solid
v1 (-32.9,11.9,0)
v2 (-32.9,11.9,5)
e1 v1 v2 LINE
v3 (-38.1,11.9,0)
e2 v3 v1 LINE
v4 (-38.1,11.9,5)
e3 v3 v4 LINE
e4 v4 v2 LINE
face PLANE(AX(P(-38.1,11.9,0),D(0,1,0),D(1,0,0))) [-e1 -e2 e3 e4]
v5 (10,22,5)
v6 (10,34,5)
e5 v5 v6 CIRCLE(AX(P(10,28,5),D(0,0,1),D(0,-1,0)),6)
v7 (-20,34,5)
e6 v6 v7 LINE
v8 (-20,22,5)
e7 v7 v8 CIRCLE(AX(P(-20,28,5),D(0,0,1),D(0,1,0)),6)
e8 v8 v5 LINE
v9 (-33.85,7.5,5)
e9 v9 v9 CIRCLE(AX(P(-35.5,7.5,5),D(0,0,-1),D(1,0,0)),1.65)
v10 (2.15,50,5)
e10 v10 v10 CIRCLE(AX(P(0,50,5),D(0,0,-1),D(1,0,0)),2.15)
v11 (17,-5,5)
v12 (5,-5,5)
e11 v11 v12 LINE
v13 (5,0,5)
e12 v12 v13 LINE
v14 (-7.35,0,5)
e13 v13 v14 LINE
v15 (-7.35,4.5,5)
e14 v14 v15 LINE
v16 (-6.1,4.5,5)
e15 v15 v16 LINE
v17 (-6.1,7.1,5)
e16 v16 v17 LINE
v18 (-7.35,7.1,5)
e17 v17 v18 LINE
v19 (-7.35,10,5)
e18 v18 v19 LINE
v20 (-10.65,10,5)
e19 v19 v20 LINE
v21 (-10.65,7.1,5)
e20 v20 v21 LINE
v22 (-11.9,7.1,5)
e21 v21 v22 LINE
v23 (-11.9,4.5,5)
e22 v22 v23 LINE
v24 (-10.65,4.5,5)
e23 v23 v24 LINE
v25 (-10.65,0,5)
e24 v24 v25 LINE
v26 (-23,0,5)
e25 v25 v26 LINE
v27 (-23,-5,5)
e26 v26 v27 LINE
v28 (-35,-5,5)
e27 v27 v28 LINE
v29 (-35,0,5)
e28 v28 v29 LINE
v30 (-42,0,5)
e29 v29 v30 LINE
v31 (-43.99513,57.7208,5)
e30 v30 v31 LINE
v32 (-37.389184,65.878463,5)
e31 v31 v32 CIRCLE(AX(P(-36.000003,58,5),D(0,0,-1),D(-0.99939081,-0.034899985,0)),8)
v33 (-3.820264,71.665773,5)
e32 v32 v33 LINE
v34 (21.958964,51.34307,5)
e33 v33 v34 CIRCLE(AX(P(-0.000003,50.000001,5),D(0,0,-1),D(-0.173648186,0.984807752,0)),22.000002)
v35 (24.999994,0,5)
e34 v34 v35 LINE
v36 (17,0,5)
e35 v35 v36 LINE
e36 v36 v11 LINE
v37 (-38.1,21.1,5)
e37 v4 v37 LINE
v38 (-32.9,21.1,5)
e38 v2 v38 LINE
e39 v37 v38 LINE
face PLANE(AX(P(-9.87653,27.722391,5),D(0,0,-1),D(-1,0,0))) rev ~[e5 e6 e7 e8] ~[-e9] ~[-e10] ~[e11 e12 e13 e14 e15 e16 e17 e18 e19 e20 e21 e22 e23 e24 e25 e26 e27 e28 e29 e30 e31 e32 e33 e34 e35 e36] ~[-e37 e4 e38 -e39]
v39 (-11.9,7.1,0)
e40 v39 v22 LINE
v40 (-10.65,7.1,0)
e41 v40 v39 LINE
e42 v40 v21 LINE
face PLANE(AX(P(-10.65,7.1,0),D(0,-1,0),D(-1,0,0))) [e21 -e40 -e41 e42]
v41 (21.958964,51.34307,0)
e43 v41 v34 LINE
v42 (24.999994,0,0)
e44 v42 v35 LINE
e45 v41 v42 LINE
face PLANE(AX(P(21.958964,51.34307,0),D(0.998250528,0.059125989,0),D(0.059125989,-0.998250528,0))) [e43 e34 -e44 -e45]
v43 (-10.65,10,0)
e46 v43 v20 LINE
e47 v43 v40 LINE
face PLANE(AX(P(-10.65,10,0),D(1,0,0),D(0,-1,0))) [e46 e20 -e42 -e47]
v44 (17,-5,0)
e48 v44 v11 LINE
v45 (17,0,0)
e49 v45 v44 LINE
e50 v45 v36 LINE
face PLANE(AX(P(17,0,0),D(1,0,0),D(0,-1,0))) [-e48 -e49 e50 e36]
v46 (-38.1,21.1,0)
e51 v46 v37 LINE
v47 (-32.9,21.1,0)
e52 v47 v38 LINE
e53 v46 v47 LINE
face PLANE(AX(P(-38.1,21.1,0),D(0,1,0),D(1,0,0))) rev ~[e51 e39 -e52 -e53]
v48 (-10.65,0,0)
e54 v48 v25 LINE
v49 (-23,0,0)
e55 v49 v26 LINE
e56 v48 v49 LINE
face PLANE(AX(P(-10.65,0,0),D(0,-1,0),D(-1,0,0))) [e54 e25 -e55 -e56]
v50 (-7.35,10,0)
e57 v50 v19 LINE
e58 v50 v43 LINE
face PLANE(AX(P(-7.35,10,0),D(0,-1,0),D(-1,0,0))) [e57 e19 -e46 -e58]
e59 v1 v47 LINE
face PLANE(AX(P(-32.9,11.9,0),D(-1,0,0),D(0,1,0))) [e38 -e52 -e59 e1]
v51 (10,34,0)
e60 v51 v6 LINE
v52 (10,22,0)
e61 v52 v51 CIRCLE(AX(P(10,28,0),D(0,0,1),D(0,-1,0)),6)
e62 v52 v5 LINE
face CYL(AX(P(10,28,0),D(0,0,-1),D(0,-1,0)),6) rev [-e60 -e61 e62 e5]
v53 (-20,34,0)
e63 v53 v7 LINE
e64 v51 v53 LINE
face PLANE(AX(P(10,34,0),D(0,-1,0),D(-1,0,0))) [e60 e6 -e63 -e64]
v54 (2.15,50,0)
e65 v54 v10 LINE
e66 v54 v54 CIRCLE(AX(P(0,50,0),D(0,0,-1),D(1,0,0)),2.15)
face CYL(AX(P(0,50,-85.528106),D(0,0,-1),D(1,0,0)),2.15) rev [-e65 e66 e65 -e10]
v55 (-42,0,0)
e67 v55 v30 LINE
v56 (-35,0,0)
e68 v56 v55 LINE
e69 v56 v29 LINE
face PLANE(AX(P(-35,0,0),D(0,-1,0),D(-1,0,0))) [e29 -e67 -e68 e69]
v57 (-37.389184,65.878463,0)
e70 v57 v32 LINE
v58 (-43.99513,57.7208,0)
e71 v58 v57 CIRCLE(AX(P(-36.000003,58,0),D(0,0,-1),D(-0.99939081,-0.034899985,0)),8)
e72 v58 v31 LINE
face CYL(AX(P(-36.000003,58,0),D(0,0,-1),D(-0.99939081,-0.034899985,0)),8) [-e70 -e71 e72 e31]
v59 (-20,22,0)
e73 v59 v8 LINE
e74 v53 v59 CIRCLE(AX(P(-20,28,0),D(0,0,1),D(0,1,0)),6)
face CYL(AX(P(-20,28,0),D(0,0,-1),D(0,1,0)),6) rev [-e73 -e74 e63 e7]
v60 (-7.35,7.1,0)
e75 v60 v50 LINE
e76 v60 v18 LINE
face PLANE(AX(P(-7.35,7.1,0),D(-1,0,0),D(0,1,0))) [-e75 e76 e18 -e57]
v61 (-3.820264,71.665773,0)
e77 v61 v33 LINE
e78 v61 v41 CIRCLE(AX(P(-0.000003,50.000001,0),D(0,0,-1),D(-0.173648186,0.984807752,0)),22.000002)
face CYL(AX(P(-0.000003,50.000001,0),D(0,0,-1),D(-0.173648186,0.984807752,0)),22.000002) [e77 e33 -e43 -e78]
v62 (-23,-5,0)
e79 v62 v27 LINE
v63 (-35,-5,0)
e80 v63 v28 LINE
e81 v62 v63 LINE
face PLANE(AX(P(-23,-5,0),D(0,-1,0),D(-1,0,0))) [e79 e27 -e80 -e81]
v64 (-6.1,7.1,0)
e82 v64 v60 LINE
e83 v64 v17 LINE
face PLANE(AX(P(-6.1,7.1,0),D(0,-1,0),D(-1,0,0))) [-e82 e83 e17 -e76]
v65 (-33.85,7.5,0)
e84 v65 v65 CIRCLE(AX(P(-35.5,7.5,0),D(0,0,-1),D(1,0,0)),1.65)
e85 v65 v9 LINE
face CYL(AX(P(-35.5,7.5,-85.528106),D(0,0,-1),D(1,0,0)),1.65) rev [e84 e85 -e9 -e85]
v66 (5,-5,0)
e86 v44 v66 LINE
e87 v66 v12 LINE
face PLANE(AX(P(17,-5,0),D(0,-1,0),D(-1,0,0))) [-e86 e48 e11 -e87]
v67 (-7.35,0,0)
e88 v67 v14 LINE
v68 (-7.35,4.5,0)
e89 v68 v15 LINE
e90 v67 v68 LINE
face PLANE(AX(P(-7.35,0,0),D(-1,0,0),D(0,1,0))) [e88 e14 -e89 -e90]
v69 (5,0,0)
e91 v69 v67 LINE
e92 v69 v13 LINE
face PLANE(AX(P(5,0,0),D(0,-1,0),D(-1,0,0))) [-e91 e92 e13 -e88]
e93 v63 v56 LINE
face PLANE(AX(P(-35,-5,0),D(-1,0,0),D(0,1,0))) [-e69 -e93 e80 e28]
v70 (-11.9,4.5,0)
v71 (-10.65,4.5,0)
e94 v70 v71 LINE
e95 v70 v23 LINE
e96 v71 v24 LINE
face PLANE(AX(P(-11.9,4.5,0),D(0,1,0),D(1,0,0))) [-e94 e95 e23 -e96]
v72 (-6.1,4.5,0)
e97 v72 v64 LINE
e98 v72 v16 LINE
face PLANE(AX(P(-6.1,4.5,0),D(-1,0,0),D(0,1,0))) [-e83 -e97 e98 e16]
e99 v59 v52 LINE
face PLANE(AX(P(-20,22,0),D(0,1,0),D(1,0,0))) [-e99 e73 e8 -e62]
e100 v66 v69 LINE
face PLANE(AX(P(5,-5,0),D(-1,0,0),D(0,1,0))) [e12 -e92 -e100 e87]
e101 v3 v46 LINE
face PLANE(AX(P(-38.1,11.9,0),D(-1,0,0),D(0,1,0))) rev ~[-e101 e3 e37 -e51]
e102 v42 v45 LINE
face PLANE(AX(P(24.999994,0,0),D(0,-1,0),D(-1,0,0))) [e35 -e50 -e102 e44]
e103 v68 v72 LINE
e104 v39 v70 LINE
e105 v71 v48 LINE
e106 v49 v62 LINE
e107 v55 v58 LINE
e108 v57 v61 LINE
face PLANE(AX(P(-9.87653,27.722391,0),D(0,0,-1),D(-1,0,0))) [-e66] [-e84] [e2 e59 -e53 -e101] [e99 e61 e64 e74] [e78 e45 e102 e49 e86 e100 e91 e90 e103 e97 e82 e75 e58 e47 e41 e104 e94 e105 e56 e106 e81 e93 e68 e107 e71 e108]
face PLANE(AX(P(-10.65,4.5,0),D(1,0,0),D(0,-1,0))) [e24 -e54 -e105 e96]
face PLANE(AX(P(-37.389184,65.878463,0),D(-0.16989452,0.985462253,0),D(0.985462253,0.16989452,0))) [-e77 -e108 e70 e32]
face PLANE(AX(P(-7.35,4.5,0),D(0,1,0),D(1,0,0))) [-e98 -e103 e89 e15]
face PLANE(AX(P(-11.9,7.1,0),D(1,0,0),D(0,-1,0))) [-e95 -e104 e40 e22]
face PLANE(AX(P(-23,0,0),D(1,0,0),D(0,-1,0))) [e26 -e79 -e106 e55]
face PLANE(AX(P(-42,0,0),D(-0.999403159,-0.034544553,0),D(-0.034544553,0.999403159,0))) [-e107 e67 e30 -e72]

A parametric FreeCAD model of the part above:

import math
import FreeCAD as App
import Part
import Sketcher

V = App.Vector


def add_polygon(sketch, points):
    """Adds a closed chain of lines whose ends are joined by coincident constraints."""
    first, n = sketch.GeometryCount, len(points)
    for a, b in zip(points, points[1:] + points[:1]):
        sketch.addGeometry(Part.LineSegment(App.Vector(*a, 0), App.Vector(*b, 0)), False)
    for i in range(n):
        sketch.addConstraint(Sketcher.Constraint("Coincident", first + i, 2, first + (i + 1) % n, 1))

doc = App.newDocument("Part")
body = doc.addObject("PartDesign::Body", "Body")

# Sketch on XY plane
sketch1 = body.newObject("Sketcher::SketchObject", "Sketch")
sketch1.AttachmentSupport = (doc.getObject("XY_Plane"), [""])
sketch1.MapMode = "FlatFace"
sketch1.addGeometry(Part.LineSegment(V(25, 0, 0), V(22, 51.3, 0)), False)  # 0
sketch1.addGeometry(Part.ArcOfCircle(Part.Circle(V(0, 50, 0), V(0, 0, 1), 22), math.radians(4), math.radians(100)), False)  # 1
sketch1.addGeometry(Part.LineSegment(V(-3.8, 71.7, 0), V(-37.4, 65.9, 0)), False)  # 2
sketch1.addGeometry(Part.ArcOfCircle(Part.Circle(V(-36, 58, 0), V(0, 0, 1), 8), math.radians(100), math.radians(182)), False)  # 3
sketch1.addGeometry(Part.LineSegment(V(-44, 57.7, 0), V(-42, 0, 0)), False)  # 4
sketch1.addGeometry(Part.LineSegment(V(-42, 0, 0), V(-35, 0, 0)), False)  # 5
sketch1.addGeometry(Part.LineSegment(V(-35, 0, 0), V(-35, -5, 0)), False)  # 6
sketch1.addGeometry(Part.LineSegment(V(-35, -5, 0), V(-23, -5, 0)), False)  # 7
sketch1.addGeometry(Part.LineSegment(V(-23, -5, 0), V(-23, 0, 0)), False)  # 8
sketch1.addGeometry(Part.LineSegment(V(-23, 0, 0), V(-10.7, 0, 0)), False)  # 9
sketch1.addGeometry(Part.LineSegment(V(-10.7, 0, 0), V(-10.7, 4.5, 0)), False)  # 10
sketch1.addGeometry(Part.LineSegment(V(-10.7, 4.5, 0), V(-11.9, 4.5, 0)), False)  # 11
sketch1.addGeometry(Part.LineSegment(V(-11.9, 4.5, 0), V(-11.9, 7.1, 0)), False)  # 12
sketch1.addGeometry(Part.LineSegment(V(-11.9, 7.1, 0), V(-10.7, 7.1, 0)), False)  # 13
sketch1.addGeometry(Part.LineSegment(V(-10.7, 7.1, 0), V(-10.7, 10, 0)), False)  # 14
sketch1.addGeometry(Part.LineSegment(V(-10.7, 10, 0), V(-7.3, 10, 0)), False)  # 15
sketch1.addGeometry(Part.LineSegment(V(-7.3, 10, 0), V(-7.3, 7.1, 0)), False)  # 16
sketch1.addGeometry(Part.LineSegment(V(-7.3, 7.1, 0), V(-6.1, 7.1, 0)), False)  # 17
sketch1.addGeometry(Part.LineSegment(V(-6.1, 7.1, 0), V(-6.1, 4.5, 0)), False)  # 18
sketch1.addGeometry(Part.LineSegment(V(-6.1, 4.5, 0), V(-7.3, 4.5, 0)), False)  # 19
sketch1.addGeometry(Part.LineSegment(V(-7.3, 4.5, 0), V(-7.3, 0, 0)), False)  # 20
sketch1.addGeometry(Part.LineSegment(V(-7.3, 0, 0), V(5, 0, 0)), False)  # 21
sketch1.addGeometry(Part.LineSegment(V(5, 0, 0), V(5, -5, 0)), False)  # 22
sketch1.addGeometry(Part.LineSegment(V(5, -5, 0), V(17, -5, 0)), False)  # 23
sketch1.addGeometry(Part.LineSegment(V(17, -5, 0), V(17, 0, 0)), False)  # 24
sketch1.addGeometry(Part.LineSegment(V(17, 0, 0), V(25, 0, 0)), False)  # 25
add_polygon(sketch1, [(-38.1, 11.9), (-38.1, 21.1), (-32.9, 21.1), (-32.9, 11.9)])  # lines 26-29
sketch1.addGeometry(Part.ArcOfCircle(Part.Circle(V(10, 28, 0), V(0, 0, 1), 6), math.radians(-90), math.radians(90)), False)  # 30
sketch1.addGeometry(Part.LineSegment(V(10, 22, 0), V(-20, 22, 0)), False)  # 31
sketch1.addGeometry(Part.ArcOfCircle(Part.Circle(V(-20, 28, 0), V(0, 0, 1), 6), math.radians(90), math.radians(270)), False)  # 32
sketch1.addGeometry(Part.LineSegment(V(-20, 34, 0), V(10, 34, 0)), False)  # 33
sketch1.addConstraint([
    Sketcher.Constraint("Coincident", 0, 2, 1, 1),
    Sketcher.Constraint("Coincident", 1, 2, 2, 1),
    Sketcher.Constraint("Coincident", 2, 2, 3, 1),
    Sketcher.Constraint("Coincident", 3, 2, 4, 1),
    Sketcher.Constraint("Coincident", 4, 2, 5, 1),
    Sketcher.Constraint("Coincident", 5, 2, 6, 1),
    Sketcher.Constraint("Coincident", 6, 2, 7, 1),
    Sketcher.Constraint("Coincident", 7, 2, 8, 1),
    Sketcher.Constraint("Coincident", 8, 2, 9, 1),
    Sketcher.Constraint("Coincident", 9, 2, 10, 1),
    Sketcher.Constraint("Coincident", 10, 2, 11, 1),
    Sketcher.Constraint("Coincident", 11, 2, 12, 1),
    Sketcher.Constraint("Coincident", 12, 2, 13, 1),
    Sketcher.Constraint("Coincident", 13, 2, 14, 1),
    Sketcher.Constraint("Coincident", 14, 2, 15, 1),
    Sketcher.Constraint("Coincident", 15, 2, 16, 1),
    Sketcher.Constraint("Coincident", 16, 2, 17, 1),
    Sketcher.Constraint("Coincident", 17, 2, 18, 1),
    Sketcher.Constraint("Coincident", 18, 2, 19, 1),
    Sketcher.Constraint("Coincident", 19, 2, 20, 1),
    Sketcher.Constraint("Coincident", 20, 2, 21, 1),
    Sketcher.Constraint("Coincident", 21, 2, 22, 1),
    Sketcher.Constraint("Coincident", 22, 2, 23, 1),
    Sketcher.Constraint("Coincident", 23, 2, 24, 1),
    Sketcher.Constraint("Coincident", 24, 2, 25, 1),
    Sketcher.Constraint("Coincident", 25, 2, 0, 1),
    Sketcher.Constraint("Tangent", 30, 1, 31, 1),
    Sketcher.Constraint("Tangent", 31, 2, 32, 2),
    Sketcher.Constraint("Tangent", 32, 1, 33, 1),
    Sketcher.Constraint("Tangent", 33, 2, 30, 2),
    Sketcher.Constraint("Horizontal", 5),
    Sketcher.Constraint("Vertical", 6),
    Sketcher.Constraint("Horizontal", 7),
    Sketcher.Constraint("Vertical", 8),
    Sketcher.Constraint("Horizontal", 9),
    Sketcher.Constraint("Vertical", 10),
    Sketcher.Constraint("Horizontal", 11),
    Sketcher.Constraint("Vertical", 12),
    Sketcher.Constraint("Horizontal", 13),
    Sketcher.Constraint("Vertical", 14),
    Sketcher.Constraint("Horizontal", 15),
    Sketcher.Constraint("Vertical", 16),
    Sketcher.Constraint("Horizontal", 17),
    Sketcher.Constraint("Vertical", 18),
    Sketcher.Constraint("Horizontal", 19),
    Sketcher.Constraint("Vertical", 20),
    Sketcher.Constraint("Horizontal", 21),
    Sketcher.Constraint("Vertical", 22),
    Sketcher.Constraint("Horizontal", 23),
    Sketcher.Constraint("Vertical", 24),
    Sketcher.Constraint("Horizontal", 25),
    Sketcher.Constraint("Vertical", 26),
    Sketcher.Constraint("Horizontal", 27),
    Sketcher.Constraint("Vertical", 28),
    Sketcher.Constraint("Horizontal", 29),
    Sketcher.Constraint("Horizontal", 31),
    Sketcher.Constraint("Horizontal", 33),
    Sketcher.Constraint("PointOnObject", 4, 2, -1),
    Sketcher.Constraint("PointOnObject", 8, 2, -1),
    Sketcher.Constraint("PointOnObject", 20, 2, -1),
    Sketcher.Constraint("PointOnObject", 24, 2, -1),
    Sketcher.Constraint("Horizontal", 13, 2, 16, 2),
    Sketcher.Constraint("Horizontal", 11, 2, 18, 2),
    Sketcher.Constraint("Horizontal", 7, 2, 22, 2),
    Sketcher.Constraint("Vertical", 10, 2, 13, 2),
    Sketcher.Constraint("Vertical", 16, 2, 19, 2),
    Sketcher.Constraint("Equal", 13, 17),
    Sketcher.Constraint("Equal", 9, 21),
    Sketcher.Constraint("Equal", 7, 23),
    Sketcher.Constraint("Radius", 3, 8.0),
    Sketcher.Constraint("Radius", 30, 6.0),
    Sketcher.Constraint("DistanceX", 5, 1, 5, 2, 7.0),
    Sketcher.Constraint("DistanceX", 7, 1, 7, 2, 12.0),
    Sketcher.Constraint("DistanceX", 31, 2, 31, 1, 30.0),
    Sketcher.Constraint("DistanceY", 6, 2, 6, 1, 5.0),
    Sketcher.Constraint("DistanceX", 15, 1, 15, 2, 3.3),
    Sketcher.Constraint("DistanceX", 27, 1, 27, 2, 5.2),
    Sketcher.Constraint("DistanceY", 10, 1, 10, 2, 4.5),
    Sketcher.Constraint("DistanceY", 12, 1, 12, 2, 2.6),
    Sketcher.Constraint("DistanceY", 14, 1, 14, 2, 2.9),
    Sketcher.Constraint("DistanceY", 26, 1, 26, 2, 9.2),
    Sketcher.Constraint("DistanceY", -1, 1, 1, 3, 50.000001),
    Sketcher.Constraint("DistanceY", -1, 1, 3, 3, 58.0),
    Sketcher.Constraint("DistanceX", -1, 1, 30, 3, 10.0),
    Sketcher.Constraint("DistanceY", -1, 1, 30, 3, 28.0),
    Sketcher.Constraint("DistanceX", 4, 2, -1, 1, 42.0),
    Sketcher.Constraint("DistanceX", -1, 1, 21, 2, 5.0),
    Sketcher.Constraint("DistanceX", 3, 3, 1, 3, 36.0),
    Sketcher.Constraint("DistanceX", 11, 2, 11, 1, 1.25),
    Sketcher.Constraint("DistanceX", 26, 2, -1, 1, 38.1),
    Sketcher.Constraint("DistanceY", -1, 1, 26, 2, 21.1),
    Sketcher.Constraint("Radius", 1, 22.000002),
    Sketcher.Constraint("DistanceY", -1, 1, 3, 2, 57.7208),
    Sketcher.Constraint("Distance", 0, 51.433051),
    Sketcher.Constraint("Distance", 4, 57.755271),
    Sketcher.Constraint("DistanceX", 25, 1, 25, 2, 7.999994),
    Sketcher.Constraint("DistanceX", 1, 2, 1, 3, 3.82026),
    Sketcher.Constraint("DistanceX", 2, 2, 3, 3, 1.389181),
])
pad1 = body.newObject("PartDesign::Pad", "Pad")
pad1.Profile = sketch1
pad1.Length = 5

# Sketch on XY plane
sketch2 = body.newObject("Sketcher::SketchObject", "Sketch001")
sketch2.AttachmentSupport = (doc.getObject("XY_Plane"), [""])
sketch2.MapMode = "FlatFace"
sketch2.addGeometry([
    Part.Circle(V(-35.5, 7.5, 0), V(0, 0, 1), 1.6),
    Part.Circle(V(0, 50, 0), V(0, 0, 1), 2.1),
], False)
sketch2.addConstraint([
    Sketcher.Constraint("PointOnObject", 1, 3, -2),
    Sketcher.Constraint("Diameter", 0, 3.3),
    Sketcher.Constraint("Diameter", 1, 4.3),
    Sketcher.Constraint("DistanceY", -1, 1, 1, 3, 50.0),
    Sketcher.Constraint("DistanceX", 0, 3, -1, 1, 35.5),
    Sketcher.Constraint("DistanceY", -1, 1, 0, 3, 7.5),
])
pocket1 = body.newObject("PartDesign::Pocket", "Pocket")
pocket1.Profile = sketch2
pocket1.Type = "ThroughAll"
pocket1.Midplane = True

doc.recompute()
